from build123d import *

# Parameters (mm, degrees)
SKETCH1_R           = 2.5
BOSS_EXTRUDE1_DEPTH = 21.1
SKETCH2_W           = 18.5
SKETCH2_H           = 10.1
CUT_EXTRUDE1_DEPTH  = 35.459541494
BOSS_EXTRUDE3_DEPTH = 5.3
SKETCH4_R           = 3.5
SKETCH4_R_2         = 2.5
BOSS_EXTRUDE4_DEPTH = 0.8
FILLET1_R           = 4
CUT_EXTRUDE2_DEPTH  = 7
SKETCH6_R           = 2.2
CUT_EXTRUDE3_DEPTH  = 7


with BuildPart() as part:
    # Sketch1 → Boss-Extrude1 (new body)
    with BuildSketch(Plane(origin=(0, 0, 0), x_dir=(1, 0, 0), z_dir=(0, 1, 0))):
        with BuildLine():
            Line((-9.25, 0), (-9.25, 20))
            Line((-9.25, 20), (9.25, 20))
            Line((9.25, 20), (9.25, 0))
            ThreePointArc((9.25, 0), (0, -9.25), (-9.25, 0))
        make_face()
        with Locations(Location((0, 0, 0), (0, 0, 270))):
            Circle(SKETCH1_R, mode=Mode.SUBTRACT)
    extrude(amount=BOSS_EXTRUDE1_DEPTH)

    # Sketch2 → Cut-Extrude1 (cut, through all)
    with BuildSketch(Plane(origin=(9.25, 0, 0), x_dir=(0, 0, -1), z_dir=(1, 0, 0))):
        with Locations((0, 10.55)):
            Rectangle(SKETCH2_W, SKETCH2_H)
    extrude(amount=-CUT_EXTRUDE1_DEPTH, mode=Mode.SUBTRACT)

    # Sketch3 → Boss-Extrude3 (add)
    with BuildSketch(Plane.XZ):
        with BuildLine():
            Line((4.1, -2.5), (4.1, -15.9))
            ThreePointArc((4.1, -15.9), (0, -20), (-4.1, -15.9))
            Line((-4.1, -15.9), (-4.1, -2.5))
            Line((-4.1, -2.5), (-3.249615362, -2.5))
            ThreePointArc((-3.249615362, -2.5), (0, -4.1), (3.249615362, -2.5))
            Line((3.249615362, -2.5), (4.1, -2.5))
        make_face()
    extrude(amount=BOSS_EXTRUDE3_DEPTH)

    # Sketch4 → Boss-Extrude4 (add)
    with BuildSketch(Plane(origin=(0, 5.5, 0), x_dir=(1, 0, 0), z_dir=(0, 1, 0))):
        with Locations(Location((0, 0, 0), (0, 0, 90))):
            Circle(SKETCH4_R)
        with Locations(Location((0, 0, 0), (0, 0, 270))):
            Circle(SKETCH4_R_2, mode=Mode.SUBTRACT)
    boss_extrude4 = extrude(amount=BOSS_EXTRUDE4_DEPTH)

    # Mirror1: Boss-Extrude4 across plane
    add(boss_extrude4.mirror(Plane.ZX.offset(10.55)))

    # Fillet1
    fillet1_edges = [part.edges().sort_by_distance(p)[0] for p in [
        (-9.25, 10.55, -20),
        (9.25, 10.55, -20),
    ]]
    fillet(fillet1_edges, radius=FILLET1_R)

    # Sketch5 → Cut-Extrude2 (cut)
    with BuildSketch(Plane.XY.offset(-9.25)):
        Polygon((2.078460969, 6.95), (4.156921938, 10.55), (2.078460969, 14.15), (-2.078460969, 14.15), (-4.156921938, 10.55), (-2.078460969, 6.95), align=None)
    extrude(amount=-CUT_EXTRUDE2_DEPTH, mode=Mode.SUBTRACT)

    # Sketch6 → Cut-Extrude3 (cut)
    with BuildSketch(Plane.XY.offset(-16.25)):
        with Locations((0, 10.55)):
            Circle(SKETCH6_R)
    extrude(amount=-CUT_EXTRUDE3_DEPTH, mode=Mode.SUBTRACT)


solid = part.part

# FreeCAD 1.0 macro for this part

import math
import FreeCAD as App
import Part
import Sketcher

V = App.Vector
Q = App.Units.Quantity


def edges_at(feature, points):
    """Names of the edges that pass closest to the given points."""
    edges = feature.Shape.Edges
    near = lambda p: min(range(len(edges)), key=lambda i: edges[i].distToShape(Part.Vertex(*p))[0])
    return sorted({f"Edge{near(p) + 1}" for p in points})

doc = App.newDocument("Part")
params = doc.addObject("Spreadsheet::Sheet", "Params")
for row, (alias, value) in enumerate([
    ("sketch1_diameter", "5 mm"),
    ("sketch1_height", "20 mm"),
    ("sketch1_radius", "9.25 mm"),
    ("pad1_length", "21.1 mm"),
    ("sketch2_width", "10.1 mm"),
    ("sketch2_height", "18.5 mm"),
    ("sketch3_radius", "4.1 mm"),
    ("sketch3_height", "13.4 mm"),
    ("pad2_length", "5.3 mm"),
    ("sketch4_diameter", "7 mm"),
    ("sketch4_diameter2", "5 mm"),
    ("pad3_length", "0.8 mm"),
    ("fillet_radius", "4 mm"),
    ("pocket2_length", "7 mm"),
    ("sketch6_diameter", "4.4 mm"),
    ("pocket3_length", "7 mm"),
], start=1):
    params.set(f"A{row}", alias)
    params.set(f"B{row}", "=" + value)
    params.setAlias(f"B{row}", alias)

body = doc.addObject("PartDesign::Body", "Body")

sketch1 = body.newObject("Sketcher::SketchObject", "Sketch")
sketch1.AttachmentSupport = (doc.getObject("XZ_Plane"), [""])
sketch1.MapMode = "FlatFace"
sketch1.addGeometry(Part.LineSegment(V(-9.25, -20, 0), V(-9.25, 0, 0)), False)
sketch1.addGeometry(Part.ArcOfCircle(Part.Circle(V(0, 0, 0), V(0, 0, 1), 9.25), math.radians(0), math.radians(180)), False)
sketch1.addGeometry(Part.LineSegment(V(9.25, 0, 0), V(9.25, -20, 0)), False)
sketch1.addGeometry(Part.LineSegment(V(9.25, -20, 0), V(-9.25, -20, 0)), False)
sketch1.addGeometry(Part.Circle(V(0, 0, 0), V(0, 0, 1), 2.5), False)
sketch1.addConstraint(Sketcher.Constraint("Tangent", 0, 2, 1, 2))
sketch1.addConstraint(Sketcher.Constraint("Tangent", 1, 1, 2, 1))
sketch1.addConstraint(Sketcher.Constraint("Coincident", 2, 2, 3, 1))
sketch1.addConstraint(Sketcher.Constraint("Coincident", 3, 2, 0, 1))
sketch1.addConstraint(Sketcher.Constraint("Vertical", 0))
sketch1.addConstraint(Sketcher.Constraint("Vertical", 2))
sketch1.addConstraint(Sketcher.Constraint("Horizontal", 3))
sketch1.addConstraint(Sketcher.Constraint("Coincident", 1, 3, -1, 1))
sketch1.addConstraint(Sketcher.Constraint("Coincident", 4, 3, -1, 1))
sketch1.addConstraint(Sketcher.Constraint("Diameter", 4, Q("5 mm")))
sketch1.addConstraint(Sketcher.Constraint("DistanceY", 0, 1, 0, 2, Q("20 mm")))
sketch1.addConstraint(Sketcher.Constraint("Radius", 1, Q("9.25 mm")))
sketch1.setExpression("Constraints[9]", "Params.sketch1_diameter")
sketch1.setExpression("Constraints[10]", "Params.sketch1_height")
sketch1.setExpression("Constraints[11]", "Params.sketch1_radius")
pad1 = body.newObject("PartDesign::Pad", "Pad")
pad1.Profile = sketch1
pad1.setExpression("Length", "Params.pad1_length")
pad1.Reversed = True

sketch2 = body.newObject("Sketcher::SketchObject", "Sketch001")
sketch2.AttachmentSupport = (doc.getObject("YZ_Plane"), [""])
sketch2.MapMode = "FlatFace"
sketch2.AttachmentOffset = App.Placement(V(0, 0, 9.25), App.Rotation())
sketch2.addGeometry(Part.LineSegment(V(15.6, 9.25, 0), V(5.5, 9.25, 0)), False)
sketch2.addGeometry(Part.LineSegment(V(5.5, 9.25, 0), V(5.5, -9.25, 0)), False)
sketch2.addGeometry(Part.LineSegment(V(5.5, -9.25, 0), V(15.6, -9.25, 0)), False)
sketch2.addGeometry(Part.LineSegment(V(15.6, -9.25, 0), V(15.6, 9.25, 0)), False)
sketch2.addConstraint(Sketcher.Constraint("Coincident", 0, 2, 1, 1))
sketch2.addConstraint(Sketcher.Constraint("Coincident", 1, 2, 2, 1))
sketch2.addConstraint(Sketcher.Constraint("Coincident", 2, 2, 3, 1))
sketch2.addConstraint(Sketcher.Constraint("Coincident", 3, 2, 0, 1))
sketch2.addConstraint(Sketcher.Constraint("Horizontal", 0))
sketch2.addConstraint(Sketcher.Constraint("Vertical", 1))
sketch2.addConstraint(Sketcher.Constraint("Horizontal", 2))
sketch2.addConstraint(Sketcher.Constraint("Vertical", 3))
sketch2.addConstraint(Sketcher.Constraint("DistanceX", 0, 2, 0, 1, Q("10.1 mm")))
sketch2.addConstraint(Sketcher.Constraint("DistanceY", 1, 2, 1, 1, Q("18.5 mm")))
sketch2.addConstraint(Sketcher.Constraint("DistanceX", -1, 1, 0, 2, Q("5.5 mm")))
sketch2.addConstraint(Sketcher.Constraint("DistanceY", -1, 1, 0, 2, Q("9.25 mm")))
sketch2.setExpression("Constraints[8]", "Params.sketch2_width")
sketch2.setExpression("Constraints[9]", "Params.sketch2_height")
pocket1 = body.newObject("PartDesign::Pocket", "Pocket")
pocket1.Profile = sketch2
pocket1.Type = "ThroughAll"

sketch3 = body.newObject("Sketcher::SketchObject", "Sketch002")
sketch3.AttachmentSupport = (doc.getObject("XZ_Plane"), [""])
sketch3.MapMode = "FlatFace"
sketch3.addGeometry(Part.LineSegment(V(4.1, -15.9, 0), V(4.1, -2.5, 0)), False)
sketch3.addGeometry(Part.LineSegment(V(4.1, -2.5, 0), V(3.249615, -2.5, 0)), False)
sketch3.addGeometry(Part.ArcOfCircle(Part.Circle(V(0, 0, 0), V(0, 0, 1), 4.1), math.radians(-142.428131), math.radians(-37.571869)), False)
sketch3.addGeometry(Part.LineSegment(V(-3.249615, -2.5, 0), V(-4.1, -2.5, 0)), False)
sketch3.addGeometry(Part.LineSegment(V(-4.1, -2.5, 0), V(-4.1, -15.9, 0)), False)
sketch3.addGeometry(Part.ArcOfCircle(Part.Circle(V(0, -15.9, 0), V(0, 0, 1), 4.1), math.radians(180), math.radians(360)), False)
sketch3.addConstraint(Sketcher.Constraint("Coincident", 0, 2, 1, 1))
sketch3.addConstraint(Sketcher.Constraint("Coincident", 1, 2, 2, 2))
sketch3.addConstraint(Sketcher.Constraint("Coincident", 2, 1, 3, 1))
sketch3.addConstraint(Sketcher.Constraint("Coincident", 3, 2, 4, 1))
sketch3.addConstraint(Sketcher.Constraint("Tangent", 4, 2, 5, 1))
sketch3.addConstraint(Sketcher.Constraint("Tangent", 5, 2, 0, 1))
sketch3.addConstraint(Sketcher.Constraint("Vertical", 0))
sketch3.addConstraint(Sketcher.Constraint("Horizontal", 1))
sketch3.addConstraint(Sketcher.Constraint("Horizontal", 3))
sketch3.addConstraint(Sketcher.Constraint("Vertical", 4))
sketch3.addConstraint(Sketcher.Constraint("Coincident", 2, 3, -1, 1))
sketch3.addConstraint(Sketcher.Constraint("Equal", 2, 5))
sketch3.addConstraint(Sketcher.Constraint("Symmetric", 0, 2, 3, 2, -2))
sketch3.addConstraint(Sketcher.Constraint("Radius", 2, Q("4.1 mm")))
sketch3.addConstraint(Sketcher.Constraint("DistanceY", 0, 1, 0, 2, Q("13.4 mm")))
sketch3.addConstraint(Sketcher.Constraint("DistanceY", 5, 3, -1, 1, Q("15.9 mm")))
sketch3.setExpression("Constraints[13]", "Params.sketch3_radius")
sketch3.setExpression("Constraints[14]", "Params.sketch3_height")
pad2 = body.newObject("PartDesign::Pad", "Pad001")
pad2.Profile = sketch3
pad2.setExpression("Length", "Params.pad2_length")

sketch4 = body.newObject("Sketcher::SketchObject", "Sketch003")
sketch4.AttachmentSupport = (doc.getObject("XZ_Plane"), [""])
sketch4.MapMode = "FlatFace"
sketch4.AttachmentOffset = App.Placement(V(0, 0, -5.5), App.Rotation())
sketch4.addGeometry(Part.Circle(V(0, 0, 0), V(0, 0, 1), 3.5), False)
sketch4.addGeometry(Part.Circle(V(0, 0, 0), V(0, 0, 1), 2.5), False)
sketch4.addConstraint(Sketcher.Constraint("Coincident", 0, 3, -1, 1))
sketch4.addConstraint(Sketcher.Constraint("Coincident", 1, 3, -1, 1))
sketch4.addConstraint(Sketcher.Constraint("Diameter", 0, Q("7 mm")))
sketch4.addConstraint(Sketcher.Constraint("Diameter", 1, Q("5 mm")))
sketch4.setExpression("Constraints[2]", "Params.sketch4_diameter")
sketch4.setExpression("Constraints[3]", "Params.sketch4_diameter2")
pad3 = body.newObject("PartDesign::Pad", "Pad002")
pad3.Profile = sketch4
pad3.setExpression("Length", "Params.pad3_length")
pad3.Reversed = True
doc.recompute()

datumplane = body.newObject("PartDesign::Plane", "DatumPlane")
datumplane.AttachmentSupport = (doc.getObject("XZ_Plane"), [""])
datumplane.MapMode = "FlatFace"
datumplane.AttachmentOffset = App.Placement(V(0, 0, -10.55), App.Rotation())
mirrored = body.newObject("PartDesign::Mirrored", "Mirrored")
mirrored.Originals = [pad3]
mirrored.MirrorPlane = (datumplane, [""])
body.Tip = mirrored
doc.recompute()

fillet = body.newObject("PartDesign::Fillet", "Fillet")
fillet.Base = (mirrored, edges_at(mirrored, [(-9.25, 10.55, -20), (9.25, 10.55, -20)]))
fillet.setExpression("Radius", "Params.fillet_radius")

sketch5 = body.newObject("Sketcher::SketchObject", "Sketch004")
sketch5.AttachmentSupport = (doc.getObject("XY_Plane"), [""])
sketch5.MapMode = "FlatFace"
sketch5.AttachmentOffset = App.Placement(V(0, 0, -9.25), App.Rotation())
sketch5.addGeometry(Part.LineSegment(V(2.078461, 6.95, 0), V(4.156922, 10.55, 0)), False)
sketch5.addGeometry(Part.LineSegment(V(4.156922, 10.55, 0), V(2.078461, 14.15, 0)), False)
sketch5.addGeometry(Part.LineSegment(V(2.078461, 14.15, 0), V(-2.078461, 14.15, 0)), False)
sketch5.addGeometry(Part.LineSegment(V(-2.078461, 14.15, 0), V(-4.156922, 10.55, 0)), False)
sketch5.addGeometry(Part.LineSegment(V(-4.156922, 10.55, 0), V(-2.078461, 6.95, 0)), False)
sketch5.addGeometry(Part.LineSegment(V(-2.078461, 6.95, 0), V(2.078461, 6.95, 0)), False)
sketch5.addConstraint(Sketcher.Constraint("Coincident", 0, 2, 1, 1))
sketch5.addConstraint(Sketcher.Constraint("Coincident", 1, 2, 2, 1))
sketch5.addConstraint(Sketcher.Constraint("Coincident", 2, 2, 3, 1))
sketch5.addConstraint(Sketcher.Constraint("Coincident", 3, 2, 4, 1))
sketch5.addConstraint(Sketcher.Constraint("Coincident", 4, 2, 5, 1))
sketch5.addConstraint(Sketcher.Constraint("Coincident", 5, 2, 0, 1))
sketch5.addConstraint(Sketcher.Constraint("Horizontal", 2))
sketch5.addConstraint(Sketcher.Constraint("Horizontal", 5))
sketch5.addConstraint(Sketcher.Constraint("Symmetric", 0, 2, 3, 2, -2))
sketch5.addConstraint(Sketcher.Constraint("Parallel", 0, 3))
sketch5.addConstraint(Sketcher.Constraint("Parallel", 1, 4))
sketch5.addConstraint(Sketcher.Constraint("Vertical", 2, 2, 4, 2))
sketch5.addConstraint(Sketcher.Constraint("Vertical", 1, 2, 5, 2))
sketch5.addConstraint(Sketcher.Constraint("Angle", 0, Q("60 deg")))
sketch5.addConstraint(Sketcher.Constraint("DistanceY", 0, 2, 1, 2, Q("3.6 mm")))
sketch5.addConstraint(Sketcher.Constraint("DistanceY", -1, 1, 0, 2, Q("10.55 mm")))
sketch5.addConstraint(Sketcher.Constraint("DistanceX", 2, 2, 2, 1, Q("4.156922 mm")))
pocket2 = body.newObject("PartDesign::Pocket", "Pocket001")
pocket2.Profile = sketch5
pocket2.setExpression("Length", "Params.pocket2_length")

sketch6 = body.newObject("Sketcher::SketchObject", "Sketch005")
sketch6.AttachmentSupport = (doc.getObject("XY_Plane"), [""])
sketch6.MapMode = "FlatFace"
sketch6.AttachmentOffset = App.Placement(V(0, 0, -16.25), App.Rotation())
sketch6.addGeometry(Part.Circle(V(0, 10.55, 0), V(0, 0, 1), 2.2), False)
sketch6.addConstraint(Sketcher.Constraint("PointOnObject", 0, 3, -2))
sketch6.addConstraint(Sketcher.Constraint("Diameter", 0, Q("4.4 mm")))
sketch6.addConstraint(Sketcher.Constraint("DistanceY", -1, 1, 0, 3, Q("10.55 mm")))
sketch6.setExpression("Constraints[1]", "Params.sketch6_diameter")
pocket3 = body.newObject("PartDesign::Pocket", "Pocket002")
pocket3.Profile = sketch6
pocket3.setExpression("Length", "Params.pocket3_length")

doc.recompute()
